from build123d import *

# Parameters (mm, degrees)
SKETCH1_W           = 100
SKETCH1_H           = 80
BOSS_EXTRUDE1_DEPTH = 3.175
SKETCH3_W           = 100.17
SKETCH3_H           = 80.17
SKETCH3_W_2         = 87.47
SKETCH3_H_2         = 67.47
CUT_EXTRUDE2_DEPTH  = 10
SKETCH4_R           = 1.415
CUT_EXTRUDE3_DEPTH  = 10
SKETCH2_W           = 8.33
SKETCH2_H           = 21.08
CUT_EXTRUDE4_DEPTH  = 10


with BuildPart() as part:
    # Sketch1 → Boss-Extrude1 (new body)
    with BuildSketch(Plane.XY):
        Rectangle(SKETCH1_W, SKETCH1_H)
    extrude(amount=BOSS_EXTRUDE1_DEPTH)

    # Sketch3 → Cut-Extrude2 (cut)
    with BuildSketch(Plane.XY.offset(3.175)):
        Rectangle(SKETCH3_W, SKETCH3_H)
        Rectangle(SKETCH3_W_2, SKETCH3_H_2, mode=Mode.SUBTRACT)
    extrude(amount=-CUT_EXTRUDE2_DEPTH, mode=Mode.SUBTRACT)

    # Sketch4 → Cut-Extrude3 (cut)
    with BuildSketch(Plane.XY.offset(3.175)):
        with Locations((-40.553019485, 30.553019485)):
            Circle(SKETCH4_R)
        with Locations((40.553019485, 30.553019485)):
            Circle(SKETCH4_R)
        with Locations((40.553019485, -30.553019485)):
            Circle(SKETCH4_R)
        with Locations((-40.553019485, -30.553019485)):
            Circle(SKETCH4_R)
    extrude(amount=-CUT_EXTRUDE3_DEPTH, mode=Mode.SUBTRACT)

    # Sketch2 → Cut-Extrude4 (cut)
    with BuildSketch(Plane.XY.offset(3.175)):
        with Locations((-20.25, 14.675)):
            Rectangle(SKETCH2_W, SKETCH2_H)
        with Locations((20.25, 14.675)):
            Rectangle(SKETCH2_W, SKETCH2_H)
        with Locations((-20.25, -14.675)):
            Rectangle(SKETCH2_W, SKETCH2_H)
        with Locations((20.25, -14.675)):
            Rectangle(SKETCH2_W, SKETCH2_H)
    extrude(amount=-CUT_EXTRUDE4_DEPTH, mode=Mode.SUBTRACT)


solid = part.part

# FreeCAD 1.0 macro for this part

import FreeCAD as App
import Part
import Sketcher

V = App.Vector


def add_polygon(sketch, points):
    """Adds a closed chain of lines whose ends are joined by coincident constraints."""
    first, n = sketch.GeometryCount, len(points)
    for a, b in zip(points, points[1:] + points[:1]):
        sketch.addGeometry(Part.LineSegment(App.Vector(*a, 0), App.Vector(*b, 0)), False)
    for i in range(n):
        sketch.addConstraint(Sketcher.Constraint("Coincident", first + i, 2, first + (i + 1) % n, 1))

doc = App.newDocument("Part")
body = doc.addObject("PartDesign::Body", "Body")

sketch1 = body.newObject("Sketcher::SketchObject", "Sketch")
sketch1.AttachmentSupport = (doc.getObject("XY_Plane"), [""])
sketch1.MapMode = "FlatFace"
add_polygon(sketch1, [(-50, 40), (-50, -40), (50, -40), (50, 40)])
sketch1.addConstraint([
    Sketcher.Constraint("Vertical", 0),
    Sketcher.Constraint("Horizontal", 1),
    Sketcher.Constraint("Vertical", 2),
    Sketcher.Constraint("Horizontal", 3),
    Sketcher.Constraint("Symmetric", 0, 2, 2, 2, -1, 1),
    Sketcher.Constraint("DistanceX", 1, 1, 1, 2, 100.0),
    Sketcher.Constraint("DistanceY", 0, 2, 0, 1, 80.0),
])
pad1 = body.newObject("PartDesign::Pad", "Pad")
pad1.Profile = sketch1
pad1.Length = 3.175

sketch2 = body.newObject("Sketcher::SketchObject", "Sketch001")
sketch2.AttachmentSupport = (doc.getObject("XY_Plane"), [""])
sketch2.MapMode = "FlatFace"
sketch2.AttachmentOffset = App.Placement(V(0, 0, 3.175), App.Rotation())
add_polygon(sketch2, [(-50.085, 40.085), (-50.085, -40.085), (50.085, -40.085), (50.085, 40.085)])
add_polygon(sketch2, [(43.735, -33.735), (-43.735, -33.735), (-43.735, 33.735), (43.735, 33.735)])
sketch2.addConstraint([
    Sketcher.Constraint("Vertical", 0),
    Sketcher.Constraint("Horizontal", 1),
    Sketcher.Constraint("Vertical", 2),
    Sketcher.Constraint("Horizontal", 3),
    Sketcher.Constraint("Horizontal", 4),
    Sketcher.Constraint("Vertical", 5),
    Sketcher.Constraint("Horizontal", 6),
    Sketcher.Constraint("Vertical", 7),
    Sketcher.Constraint("Symmetric", 0, 2, 2, 2, -1, 1),
    Sketcher.Constraint("Symmetric", 4, 2, 6, 2, -1, 1),
    Sketcher.Constraint("DistanceX", 1, 1, 1, 2, 100.17),
    Sketcher.Constraint("DistanceX", 4, 2, 4, 1, 87.47),
    Sketcher.Constraint("DistanceY", 0, 2, 0, 1, 80.17),
    Sketcher.Constraint("DistanceY", 5, 1, 5, 2, 67.47),
])
pocket1 = body.newObject("PartDesign::Pocket", "Pocket")
pocket1.Profile = sketch2
pocket1.Length = 10

sketch3 = body.newObject("Sketcher::SketchObject", "Sketch002")
sketch3.AttachmentSupport = (doc.getObject("XY_Plane"), [""])
sketch3.MapMode = "FlatFace"
sketch3.AttachmentOffset = App.Placement(V(0, 0, 3.175), App.Rotation())
sketch3.addGeometry([
    Part.Circle(V(-40.553019, 30.553019, 0), V(0, 0, 1), 1.415),
    Part.Circle(V(40.553019, 30.553019, 0), V(0, 0, 1), 1.415),
    Part.Circle(V(40.553019, -30.553019, 0), V(0, 0, 1), 1.415),
    Part.Circle(V(-40.553019, -30.553019, 0), V(0, 0, 1), 1.415),
], False)
sketch3.addConstraint([
    Sketcher.Constraint("Equal", 0, 1),
    Sketcher.Constraint("Equal", 1, 2),
    Sketcher.Constraint("Equal", 2, 3),
    Sketcher.Constraint("Symmetric", 0, 3, 2, 3, -1, 1),
    Sketcher.Constraint("Symmetric", 1, 3, 3, 3, -1, 1),
    Sketcher.Constraint("Symmetric", 0, 3, 1, 3, -2),
    Sketcher.Constraint("Diameter", 0, 2.83),
    Sketcher.Constraint("DistanceX", 0, 3, -1, 1, 40.553019),
    Sketcher.Constraint("DistanceY", -1, 1, 0, 3, 30.553019),
])
pocket2 = body.newObject("PartDesign::Pocket", "Pocket001")
pocket2.Profile = sketch3
pocket2.Length = 10

sketch4 = body.newObject("Sketcher::SketchObject", "Sketch003")
sketch4.AttachmentSupport = (doc.getObject("XY_Plane"), [""])
sketch4.MapMode = "FlatFace"
sketch4.AttachmentOffset = App.Placement(V(0, 0, 3.175), App.Rotation())
add_polygon(sketch4, [(-24.415, 25.215), (-24.415, 4.135), (-16.085, 4.135), (-16.085, 25.215)])
add_polygon(sketch4, [(16.085, 25.215), (16.085, 4.135), (24.415, 4.135), (24.415, 25.215)])
add_polygon(sketch4, [(-24.415, -4.135), (-24.415, -25.215), (-16.085, -25.215), (-16.085, -4.135)])
add_polygon(sketch4, [(16.085, -4.135), (16.085, -25.215), (24.415, -25.215), (24.415, -4.135)])
sketch4.addConstraint([
    Sketcher.Constraint("Vertical", 0),
    Sketcher.Constraint("Horizontal", 1),
    Sketcher.Constraint("Vertical", 2),
    Sketcher.Constraint("Horizontal", 3),
    Sketcher.Constraint("Vertical", 4),
    Sketcher.Constraint("Horizontal", 5),
    Sketcher.Constraint("Vertical", 6),
    Sketcher.Constraint("Horizontal", 7),
    Sketcher.Constraint("Vertical", 8),
    Sketcher.Constraint("Horizontal", 9),
    Sketcher.Constraint("Vertical", 10),
    Sketcher.Constraint("Horizontal", 11),
    Sketcher.Constraint("Vertical", 12),
    Sketcher.Constraint("Horizontal", 13),
    Sketcher.Constraint("Vertical", 14),
    Sketcher.Constraint("Horizontal", 15),
    Sketcher.Constraint("Symmetric", 6, 2, 8, 2, -1, 1),
    Sketcher.Constraint("Symmetric", 4, 2, 10, 2, -1, 1),
    Sketcher.Constraint("Symmetric", 2, 2, 12, 2, -1, 1),
    Sketcher.Constraint("Symmetric", 0, 2, 14, 2, -1, 1),
    Sketcher.Constraint("Symmetric", 1, 2, 4, 2, -2),
    Sketcher.Constraint("Symmetric", 3, 2, 6, 2, -2),
    Sketcher.Constraint("DistanceX", 1, 1, 1, 2, 8.33),
    Sketcher.Constraint("DistanceY", 0, 2, 0, 1, 21.08),
    Sketcher.Constraint("DistanceX", 0, 2, 4, 2, 40.5),
    Sketcher.Constraint("DistanceY", 8, 2, 0, 2, 29.35),
])
pocket3 = body.newObject("PartDesign::Pocket", "Pocket002")
pocket3.Profile = sketch4
pocket3.Length = 10

doc.recompute()
